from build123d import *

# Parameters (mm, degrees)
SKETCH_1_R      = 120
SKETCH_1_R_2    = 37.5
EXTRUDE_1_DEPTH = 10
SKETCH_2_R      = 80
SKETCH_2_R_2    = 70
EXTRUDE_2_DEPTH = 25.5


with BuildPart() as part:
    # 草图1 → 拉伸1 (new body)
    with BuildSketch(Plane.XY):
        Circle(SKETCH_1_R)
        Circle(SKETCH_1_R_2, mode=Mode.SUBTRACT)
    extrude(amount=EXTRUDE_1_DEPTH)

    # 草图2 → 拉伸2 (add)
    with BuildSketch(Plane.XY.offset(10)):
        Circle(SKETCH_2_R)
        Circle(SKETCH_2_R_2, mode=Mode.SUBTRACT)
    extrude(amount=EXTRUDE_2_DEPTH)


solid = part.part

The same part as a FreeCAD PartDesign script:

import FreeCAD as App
import Part
import Sketcher

V = App.Vector

doc = App.newDocument("Part")
params = doc.addObject("Spreadsheet::Sheet", "Params")
for row, (alias, value) in enumerate([
    ("sketch1_diameter", "240 mm"),
    ("sketch1_diameter2", "75 mm"),
    ("pad1_length", "10 mm"),
    ("sketch2_diameter", "160 mm"),
    ("sketch2_diameter2", "140 mm"),
    ("pad2_length", "25.5 mm"),
], start=1):
    params.set(f"A{row}", alias)
    params.set(f"B{row}", "=" + value)
    params.setAlias(f"B{row}", alias)

body = doc.addObject("PartDesign::Body", "Body")

# Sketch on XY plane
sketch1 = body.newObject("Sketcher::SketchObject", "Sketch")
sketch1.AttachmentSupport = (doc.getObject("XY_Plane"), [""])
sketch1.MapMode = "FlatFace"
sketch1.addGeometry(Part.Circle(V(0, 0, 0), V(0, 0, 1), 120), False)
sketch1.addGeometry(Part.Circle(V(0, 0, 0), V(0, 0, 1), 38), False)
sketch1.addConstraint(Sketcher.Constraint("Coincident", 0, 3, -1, 1))
sketch1.addConstraint(Sketcher.Constraint("Coincident", 1, 3, -1, 1))
sketch1.addConstraint(Sketcher.Constraint("Diameter", 0, 240.0))
sketch1.addConstraint(Sketcher.Constraint("Diameter", 1, 75.0))
sketch1.setExpression("Constraints[2]", "Params.sketch1_diameter")
sketch1.setExpression("Constraints[3]", "Params.sketch1_diameter2")
pad1 = body.newObject("PartDesign::Pad", "Pad")
pad1.Profile = sketch1
pad1.setExpression("Length", "Params.pad1_length")

# Sketch on XY plane
sketch2 = body.newObject("Sketcher::SketchObject", "Sketch001")
sketch2.AttachmentSupport = (doc.getObject("XY_Plane"), [""])
sketch2.MapMode = "FlatFace"
sketch2.AttachmentOffset = App.Placement(V(0, 0, 10), App.Rotation())
sketch2.addGeometry(Part.Circle(V(0, 0, 0), V(0, 0, 1), 80), False)
sketch2.addGeometry(Part.Circle(V(0, 0, 0), V(0, 0, 1), 70), False)
sketch2.addConstraint(Sketcher.Constraint("Coincident", 0, 3, -1, 1))
sketch2.addConstraint(Sketcher.Constraint("Coincident", 1, 3, -1, 1))
sketch2.addConstraint(Sketcher.Constraint("Diameter", 0, 160.0))
sketch2.addConstraint(Sketcher.Constraint("Diameter", 1, 140.0))
sketch2.setExpression("Constraints[2]", "Params.sketch2_diameter")
sketch2.setExpression("Constraints[3]", "Params.sketch2_diameter2")
pad2 = body.newObject("PartDesign::Pad", "Pad001")
pad2.Profile = sketch2
pad2.setExpression("Length", "Params.pad2_length")

doc.recompute()
